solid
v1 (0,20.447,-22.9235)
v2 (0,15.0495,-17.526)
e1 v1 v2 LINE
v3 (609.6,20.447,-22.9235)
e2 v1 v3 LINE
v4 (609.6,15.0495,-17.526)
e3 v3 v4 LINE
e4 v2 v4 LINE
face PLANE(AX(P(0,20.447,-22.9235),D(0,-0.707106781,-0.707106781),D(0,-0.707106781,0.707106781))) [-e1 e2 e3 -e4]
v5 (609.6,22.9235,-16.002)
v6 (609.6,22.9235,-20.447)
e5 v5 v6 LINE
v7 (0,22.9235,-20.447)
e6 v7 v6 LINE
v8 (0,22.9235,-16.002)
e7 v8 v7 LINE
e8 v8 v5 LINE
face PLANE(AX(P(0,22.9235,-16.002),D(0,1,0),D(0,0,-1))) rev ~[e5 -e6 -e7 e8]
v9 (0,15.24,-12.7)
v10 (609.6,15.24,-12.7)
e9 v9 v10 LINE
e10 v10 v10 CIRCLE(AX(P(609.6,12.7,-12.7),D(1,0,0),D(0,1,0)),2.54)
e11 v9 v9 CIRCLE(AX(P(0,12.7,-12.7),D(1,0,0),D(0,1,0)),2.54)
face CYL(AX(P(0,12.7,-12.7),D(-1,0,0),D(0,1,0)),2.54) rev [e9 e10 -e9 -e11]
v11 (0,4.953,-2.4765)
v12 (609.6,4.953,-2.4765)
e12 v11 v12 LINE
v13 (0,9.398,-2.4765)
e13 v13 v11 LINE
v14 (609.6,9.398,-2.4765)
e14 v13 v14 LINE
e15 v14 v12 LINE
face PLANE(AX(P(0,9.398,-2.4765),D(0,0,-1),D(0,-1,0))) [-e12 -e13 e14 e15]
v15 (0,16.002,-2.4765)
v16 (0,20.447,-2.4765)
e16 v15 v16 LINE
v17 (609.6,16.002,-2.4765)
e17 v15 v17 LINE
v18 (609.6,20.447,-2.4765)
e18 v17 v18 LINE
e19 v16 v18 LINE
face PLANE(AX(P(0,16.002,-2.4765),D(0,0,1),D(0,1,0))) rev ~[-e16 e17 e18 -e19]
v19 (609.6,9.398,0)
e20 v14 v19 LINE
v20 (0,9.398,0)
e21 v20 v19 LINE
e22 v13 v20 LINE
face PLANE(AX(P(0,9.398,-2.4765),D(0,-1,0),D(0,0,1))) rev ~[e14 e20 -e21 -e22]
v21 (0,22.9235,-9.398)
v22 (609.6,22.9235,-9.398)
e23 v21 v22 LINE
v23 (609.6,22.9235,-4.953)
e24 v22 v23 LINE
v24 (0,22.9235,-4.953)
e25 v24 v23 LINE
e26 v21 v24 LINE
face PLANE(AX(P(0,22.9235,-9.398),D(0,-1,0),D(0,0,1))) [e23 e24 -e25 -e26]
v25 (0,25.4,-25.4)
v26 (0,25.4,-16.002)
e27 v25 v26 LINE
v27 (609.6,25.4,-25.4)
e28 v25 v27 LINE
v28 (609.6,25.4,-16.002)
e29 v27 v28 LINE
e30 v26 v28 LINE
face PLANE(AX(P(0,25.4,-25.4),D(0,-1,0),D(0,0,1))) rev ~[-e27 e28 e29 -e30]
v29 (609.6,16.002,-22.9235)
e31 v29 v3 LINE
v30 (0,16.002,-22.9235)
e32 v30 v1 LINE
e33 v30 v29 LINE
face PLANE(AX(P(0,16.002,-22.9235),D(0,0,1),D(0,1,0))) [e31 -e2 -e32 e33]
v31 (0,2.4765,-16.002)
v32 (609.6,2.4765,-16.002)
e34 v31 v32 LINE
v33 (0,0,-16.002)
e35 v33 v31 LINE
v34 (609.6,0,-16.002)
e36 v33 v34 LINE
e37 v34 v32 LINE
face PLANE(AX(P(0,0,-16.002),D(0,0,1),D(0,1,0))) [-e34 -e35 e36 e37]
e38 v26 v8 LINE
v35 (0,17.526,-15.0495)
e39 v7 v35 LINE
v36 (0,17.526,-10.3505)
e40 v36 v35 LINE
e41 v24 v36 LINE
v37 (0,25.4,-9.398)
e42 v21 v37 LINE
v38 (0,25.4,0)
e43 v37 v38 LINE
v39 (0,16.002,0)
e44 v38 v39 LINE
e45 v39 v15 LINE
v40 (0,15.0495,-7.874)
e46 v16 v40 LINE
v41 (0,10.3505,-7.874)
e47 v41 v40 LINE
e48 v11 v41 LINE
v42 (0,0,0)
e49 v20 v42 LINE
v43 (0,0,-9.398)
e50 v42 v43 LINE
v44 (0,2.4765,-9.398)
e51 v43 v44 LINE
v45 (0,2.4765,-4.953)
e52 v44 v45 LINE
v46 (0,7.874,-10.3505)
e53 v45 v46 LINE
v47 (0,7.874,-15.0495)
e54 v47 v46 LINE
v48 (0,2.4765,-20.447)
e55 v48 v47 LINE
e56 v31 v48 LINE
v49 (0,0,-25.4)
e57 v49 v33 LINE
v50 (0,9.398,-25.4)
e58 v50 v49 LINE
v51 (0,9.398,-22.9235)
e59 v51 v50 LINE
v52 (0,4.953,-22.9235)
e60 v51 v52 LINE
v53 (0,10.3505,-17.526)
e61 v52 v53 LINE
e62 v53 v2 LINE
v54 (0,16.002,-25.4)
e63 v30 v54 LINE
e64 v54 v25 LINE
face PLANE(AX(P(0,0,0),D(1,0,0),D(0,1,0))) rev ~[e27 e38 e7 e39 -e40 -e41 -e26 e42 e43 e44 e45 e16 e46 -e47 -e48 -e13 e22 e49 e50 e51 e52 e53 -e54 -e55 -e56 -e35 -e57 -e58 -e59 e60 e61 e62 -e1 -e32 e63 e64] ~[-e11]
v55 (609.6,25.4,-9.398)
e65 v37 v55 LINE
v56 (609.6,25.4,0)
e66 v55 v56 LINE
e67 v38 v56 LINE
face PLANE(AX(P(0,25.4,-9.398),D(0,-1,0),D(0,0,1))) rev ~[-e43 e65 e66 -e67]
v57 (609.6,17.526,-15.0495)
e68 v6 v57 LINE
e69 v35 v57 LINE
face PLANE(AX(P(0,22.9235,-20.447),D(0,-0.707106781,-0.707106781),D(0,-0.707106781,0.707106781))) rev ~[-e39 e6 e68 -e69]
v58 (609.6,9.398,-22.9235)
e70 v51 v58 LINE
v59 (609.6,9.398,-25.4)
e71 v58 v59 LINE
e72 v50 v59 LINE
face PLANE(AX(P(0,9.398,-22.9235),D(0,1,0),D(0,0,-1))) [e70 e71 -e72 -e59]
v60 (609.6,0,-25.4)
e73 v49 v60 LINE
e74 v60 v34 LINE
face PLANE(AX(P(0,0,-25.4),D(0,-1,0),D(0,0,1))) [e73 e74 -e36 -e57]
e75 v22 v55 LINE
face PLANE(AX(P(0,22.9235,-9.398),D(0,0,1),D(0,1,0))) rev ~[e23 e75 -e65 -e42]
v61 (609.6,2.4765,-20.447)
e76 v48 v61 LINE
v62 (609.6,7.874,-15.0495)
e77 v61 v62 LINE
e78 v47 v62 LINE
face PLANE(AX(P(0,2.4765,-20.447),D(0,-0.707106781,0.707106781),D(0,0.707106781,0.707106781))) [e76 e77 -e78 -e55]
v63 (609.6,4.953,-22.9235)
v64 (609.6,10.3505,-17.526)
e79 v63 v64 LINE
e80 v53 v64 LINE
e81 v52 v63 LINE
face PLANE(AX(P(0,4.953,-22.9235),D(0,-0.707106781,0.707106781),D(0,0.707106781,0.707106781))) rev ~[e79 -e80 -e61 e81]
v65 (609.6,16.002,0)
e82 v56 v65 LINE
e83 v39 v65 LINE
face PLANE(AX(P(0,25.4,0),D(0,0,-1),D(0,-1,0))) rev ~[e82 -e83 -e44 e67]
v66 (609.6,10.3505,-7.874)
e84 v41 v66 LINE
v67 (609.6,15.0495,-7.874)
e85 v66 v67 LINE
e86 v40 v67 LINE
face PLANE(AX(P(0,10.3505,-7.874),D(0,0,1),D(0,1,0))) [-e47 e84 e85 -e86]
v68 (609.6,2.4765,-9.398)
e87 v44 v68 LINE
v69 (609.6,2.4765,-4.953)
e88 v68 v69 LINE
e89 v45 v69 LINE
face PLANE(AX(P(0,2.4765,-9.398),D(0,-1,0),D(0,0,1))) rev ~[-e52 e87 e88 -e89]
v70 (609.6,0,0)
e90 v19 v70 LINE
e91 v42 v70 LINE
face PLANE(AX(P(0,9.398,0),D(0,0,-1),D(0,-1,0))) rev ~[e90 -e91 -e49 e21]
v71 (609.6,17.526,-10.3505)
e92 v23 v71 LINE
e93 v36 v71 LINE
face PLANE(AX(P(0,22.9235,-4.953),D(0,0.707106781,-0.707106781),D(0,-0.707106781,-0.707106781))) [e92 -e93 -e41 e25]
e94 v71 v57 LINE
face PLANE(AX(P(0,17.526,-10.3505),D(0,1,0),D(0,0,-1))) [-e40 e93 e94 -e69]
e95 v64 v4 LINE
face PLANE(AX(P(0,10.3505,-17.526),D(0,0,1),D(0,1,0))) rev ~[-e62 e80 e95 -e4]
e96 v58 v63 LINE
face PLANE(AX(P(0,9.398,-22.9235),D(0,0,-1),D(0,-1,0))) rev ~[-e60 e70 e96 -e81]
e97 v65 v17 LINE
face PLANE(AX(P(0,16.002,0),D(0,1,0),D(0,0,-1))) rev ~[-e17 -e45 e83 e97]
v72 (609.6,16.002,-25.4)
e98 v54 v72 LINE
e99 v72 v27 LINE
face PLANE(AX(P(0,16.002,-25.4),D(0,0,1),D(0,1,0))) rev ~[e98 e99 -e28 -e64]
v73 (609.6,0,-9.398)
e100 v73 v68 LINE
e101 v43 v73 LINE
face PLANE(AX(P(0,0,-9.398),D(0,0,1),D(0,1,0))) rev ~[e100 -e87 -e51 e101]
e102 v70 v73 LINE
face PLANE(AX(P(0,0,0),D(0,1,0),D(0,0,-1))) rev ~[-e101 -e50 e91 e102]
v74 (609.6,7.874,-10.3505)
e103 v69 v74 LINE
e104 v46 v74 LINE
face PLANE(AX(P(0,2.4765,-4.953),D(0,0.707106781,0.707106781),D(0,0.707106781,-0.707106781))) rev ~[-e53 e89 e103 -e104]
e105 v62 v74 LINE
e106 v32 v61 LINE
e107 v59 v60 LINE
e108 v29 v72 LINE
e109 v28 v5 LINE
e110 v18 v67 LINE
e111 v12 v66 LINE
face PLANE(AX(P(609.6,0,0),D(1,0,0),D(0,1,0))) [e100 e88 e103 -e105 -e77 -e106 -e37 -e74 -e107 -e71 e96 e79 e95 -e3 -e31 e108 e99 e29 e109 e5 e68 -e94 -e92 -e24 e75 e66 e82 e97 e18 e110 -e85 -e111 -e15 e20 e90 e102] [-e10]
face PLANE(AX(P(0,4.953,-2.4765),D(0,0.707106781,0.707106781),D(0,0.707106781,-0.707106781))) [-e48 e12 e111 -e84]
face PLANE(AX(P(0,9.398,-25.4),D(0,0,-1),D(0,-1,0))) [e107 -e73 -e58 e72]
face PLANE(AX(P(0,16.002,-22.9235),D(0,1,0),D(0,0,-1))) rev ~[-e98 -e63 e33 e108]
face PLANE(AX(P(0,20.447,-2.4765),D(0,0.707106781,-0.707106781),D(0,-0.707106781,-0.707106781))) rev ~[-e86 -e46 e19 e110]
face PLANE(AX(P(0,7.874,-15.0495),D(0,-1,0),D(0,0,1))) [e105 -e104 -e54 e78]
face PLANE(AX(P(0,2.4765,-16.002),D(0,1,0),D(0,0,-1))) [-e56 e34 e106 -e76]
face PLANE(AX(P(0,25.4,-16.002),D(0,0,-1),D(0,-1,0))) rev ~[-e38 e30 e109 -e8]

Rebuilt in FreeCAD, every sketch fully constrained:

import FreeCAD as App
import Part
import Sketcher

V = App.Vector
Q = App.Units.Quantity


def add_polygon(sketch, points):
    """Adds a closed chain of lines whose ends are joined by coincident constraints."""
    first, n = sketch.GeometryCount, len(points)
    for a, b in zip(points, points[1:] + points[:1]):
        sketch.addGeometry(Part.LineSegment(App.Vector(*a, 0), App.Vector(*b, 0)), False)
    for i in range(n):
        sketch.addConstraint(Sketcher.Constraint("Coincident", first + i, 2, first + (i + 1) % n, 1))

doc = App.newDocument("Part")
params = doc.addObject("Spreadsheet::Sheet", "Params")
for row, (alias, value) in enumerate([
    ("sketch1_diameter", "0.2 in"),
    ("sketch1_width", "0.37 in"),
    ("sketch1_width2", "0.175 in"),
    ("sketch1_width3", "0.185 in"),
    ("pad1_length", "24 in"),
], start=1):
    params.set(f"A{row}", alias)
    params.set(f"B{row}", "=" + value)
    params.setAlias(f"B{row}", alias)

body = doc.addObject("PartDesign::Body", "Body")

# Sketch on YZ plane
sketch1 = body.newObject("Sketcher::SketchObject", "Sketch")
sketch1.AttachmentSupport = (doc.getObject("YZ_Plane"), [""])
sketch1.MapMode = "FlatFace"
add_polygon(sketch1, [(9.4, 0), (0, 0), (0, -9.4), (2.5, -9.4), (2.5, -5), (7.9, -10.4), (7.9, -15), (2.5, -20.4), (2.5, -16), (0, -16), (0, -25.4), (9.4, -25.4), (9.4, -22.9), (5, -22.9), (10.4, -17.5), (15, -17.5), (20.4, -22.9), (16, -22.9), (16, -25.4), (25.4, -25.4), (25.4, -16), (22.9, -16), (22.9, -20.4), (17.5, -15), (17.5, -10.4), (22.9, -5), (22.9, -9.4), (25.4, -9.4), (25.4, 0), (16, 0), (16, -2.5), (20.4, -2.5), (15, -7.9), (10.4, -7.9), (5, -2.5), (9.4, -2.5)])  # lines 0-35
sketch1.addGeometry(Part.Circle(V(12.7, -12.7, 0), V(0, 0, 1), 2.5), False)  # 36
sketch1.addConstraint([
    Sketcher.Constraint("Horizontal", 0),
    Sketcher.Constraint("Vertical", 1),
    Sketcher.Constraint("Horizontal", 2),
    Sketcher.Constraint("Vertical", 3),
    Sketcher.Constraint("Vertical", 5),
    Sketcher.Constraint("Vertical", 7),
    Sketcher.Constraint("Horizontal", 8),
    Sketcher.Constraint("Vertical", 9),
    Sketcher.Constraint("Horizontal", 10),
    Sketcher.Constraint("Vertical", 11),
    Sketcher.Constraint("Horizontal", 12),
    Sketcher.Constraint("Horizontal", 14),
    Sketcher.Constraint("Horizontal", 16),
    Sketcher.Constraint("Vertical", 17),
    Sketcher.Constraint("Horizontal", 18),
    Sketcher.Constraint("Vertical", 19),
    Sketcher.Constraint("Horizontal", 20),
    Sketcher.Constraint("Vertical", 21),
    Sketcher.Constraint("Vertical", 23),
    Sketcher.Constraint("Vertical", 25),
    Sketcher.Constraint("Horizontal", 26),
    Sketcher.Constraint("Vertical", 27),
    Sketcher.Constraint("Horizontal", 28),
    Sketcher.Constraint("Vertical", 29),
    Sketcher.Constraint("Horizontal", 30),
    Sketcher.Constraint("Horizontal", 32),
    Sketcher.Constraint("Horizontal", 34),
    Sketcher.Constraint("Vertical", 35),
    Sketcher.Constraint("Coincident", 0, 2, -1, 1),
    Sketcher.Constraint("PointOnObject", 8, 2, -2),
    Sketcher.Constraint("PointOnObject", 27, 2, -1),
    Sketcher.Constraint("Perpendicular", 4, 6),
    Sketcher.Constraint("Parallel", 6, 13),
    Sketcher.Constraint("Perpendicular", 13, 15),
    Sketcher.Constraint("Parallel", 15, 22),
    Sketcher.Constraint("Perpendicular", 22, 24),
    Sketcher.Constraint("Parallel", 24, 31),
    Sketcher.Constraint("Perpendicular", 31, 33),
    Sketcher.Constraint("Horizontal", 12, 2, 15, 2),
    Sketcher.Constraint("Horizontal", 10, 2, 17, 2),
    Sketcher.Constraint("Horizontal", 8, 2, 19, 2),
    Sketcher.Constraint("Horizontal", 6, 2, 21, 2),
    Sketcher.Constraint("Horizontal", 5, 2, 22, 2),
    Sketcher.Constraint("Horizontal", 4, 2, 23, 2),
    Sketcher.Constraint("Horizontal", 3, 2, 24, 2),
    Sketcher.Constraint("Horizontal", 2, 2, 25, 2),
    Sketcher.Constraint("Horizontal", 30, 2, 33, 2),
    Sketcher.Constraint("Vertical", 3, 2, 6, 2),
    Sketcher.Constraint("Vertical", 21, 2, 24, 2),
    Sketcher.Constraint("Vertical", 19, 2, 26, 2),
    Sketcher.Constraint("Vertical", 17, 2, 28, 2),
    Sketcher.Constraint("Vertical", 15, 2, 30, 2),
    Sketcher.Constraint("Vertical", 14, 2, 31, 2),
    Sketcher.Constraint("Vertical", 13, 2, 32, 2),
    Sketcher.Constraint("Vertical", 11, 2, 34, 2),
    Sketcher.Constraint("Equal", 12, 16),
    Sketcher.Constraint("Equal", 10, 18),
    Sketcher.Constraint("Equal", 8, 20),
    Sketcher.Constraint("Equal", 28, 1),
    Sketcher.Constraint("Equal", 34, 3),
    Sketcher.Constraint("Equal", 32, 5),
    Sketcher.Constraint("Equal", 3, 7),
    Sketcher.Constraint("Equal", 1, 9),
    Sketcher.Constraint("Equal", 26, 11),
    Sketcher.Constraint("Equal", 17, 29),
    Sketcher.Constraint("Equal", 6, 13),
    Sketcher.Constraint("Diameter", 36, Q("0.2 in")),
    Sketcher.Constraint("DistanceY", 9, 2, -1, 1, Q("1 in")),
    Sketcher.Constraint("DistanceX", 0, 2, 0, 1, Q("0.37 in")),
    Sketcher.Constraint("DistanceX", 12, 2, 12, 1, Q("0.175 in")),
    Sketcher.Constraint("DistanceX", 2, 1, 2, 2, Q("0.0975 in")),
    Sketcher.Constraint("DistanceX", -1, 1, 36, 3, Q("0.5 in")),
    Sketcher.Constraint("DistanceY", 36, 3, -1, 1, Q("0.5 in")),
    Sketcher.Constraint("DistanceX", 14, 1, 14, 2, Q("0.185 in")),
])
sketch1.setExpression("Constraints[102]", "Params.sketch1_diameter")
sketch1.setExpression("Constraints[104]", "Params.sketch1_width")
sketch1.setExpression("Constraints[105]", "Params.sketch1_width2")
sketch1.setExpression("Constraints[109]", "Params.sketch1_width3")
pad1 = body.newObject("PartDesign::Pad", "Pad")
pad1.Profile = sketch1
pad1.setExpression("Length", "Params.pad1_length")

doc.recompute()
